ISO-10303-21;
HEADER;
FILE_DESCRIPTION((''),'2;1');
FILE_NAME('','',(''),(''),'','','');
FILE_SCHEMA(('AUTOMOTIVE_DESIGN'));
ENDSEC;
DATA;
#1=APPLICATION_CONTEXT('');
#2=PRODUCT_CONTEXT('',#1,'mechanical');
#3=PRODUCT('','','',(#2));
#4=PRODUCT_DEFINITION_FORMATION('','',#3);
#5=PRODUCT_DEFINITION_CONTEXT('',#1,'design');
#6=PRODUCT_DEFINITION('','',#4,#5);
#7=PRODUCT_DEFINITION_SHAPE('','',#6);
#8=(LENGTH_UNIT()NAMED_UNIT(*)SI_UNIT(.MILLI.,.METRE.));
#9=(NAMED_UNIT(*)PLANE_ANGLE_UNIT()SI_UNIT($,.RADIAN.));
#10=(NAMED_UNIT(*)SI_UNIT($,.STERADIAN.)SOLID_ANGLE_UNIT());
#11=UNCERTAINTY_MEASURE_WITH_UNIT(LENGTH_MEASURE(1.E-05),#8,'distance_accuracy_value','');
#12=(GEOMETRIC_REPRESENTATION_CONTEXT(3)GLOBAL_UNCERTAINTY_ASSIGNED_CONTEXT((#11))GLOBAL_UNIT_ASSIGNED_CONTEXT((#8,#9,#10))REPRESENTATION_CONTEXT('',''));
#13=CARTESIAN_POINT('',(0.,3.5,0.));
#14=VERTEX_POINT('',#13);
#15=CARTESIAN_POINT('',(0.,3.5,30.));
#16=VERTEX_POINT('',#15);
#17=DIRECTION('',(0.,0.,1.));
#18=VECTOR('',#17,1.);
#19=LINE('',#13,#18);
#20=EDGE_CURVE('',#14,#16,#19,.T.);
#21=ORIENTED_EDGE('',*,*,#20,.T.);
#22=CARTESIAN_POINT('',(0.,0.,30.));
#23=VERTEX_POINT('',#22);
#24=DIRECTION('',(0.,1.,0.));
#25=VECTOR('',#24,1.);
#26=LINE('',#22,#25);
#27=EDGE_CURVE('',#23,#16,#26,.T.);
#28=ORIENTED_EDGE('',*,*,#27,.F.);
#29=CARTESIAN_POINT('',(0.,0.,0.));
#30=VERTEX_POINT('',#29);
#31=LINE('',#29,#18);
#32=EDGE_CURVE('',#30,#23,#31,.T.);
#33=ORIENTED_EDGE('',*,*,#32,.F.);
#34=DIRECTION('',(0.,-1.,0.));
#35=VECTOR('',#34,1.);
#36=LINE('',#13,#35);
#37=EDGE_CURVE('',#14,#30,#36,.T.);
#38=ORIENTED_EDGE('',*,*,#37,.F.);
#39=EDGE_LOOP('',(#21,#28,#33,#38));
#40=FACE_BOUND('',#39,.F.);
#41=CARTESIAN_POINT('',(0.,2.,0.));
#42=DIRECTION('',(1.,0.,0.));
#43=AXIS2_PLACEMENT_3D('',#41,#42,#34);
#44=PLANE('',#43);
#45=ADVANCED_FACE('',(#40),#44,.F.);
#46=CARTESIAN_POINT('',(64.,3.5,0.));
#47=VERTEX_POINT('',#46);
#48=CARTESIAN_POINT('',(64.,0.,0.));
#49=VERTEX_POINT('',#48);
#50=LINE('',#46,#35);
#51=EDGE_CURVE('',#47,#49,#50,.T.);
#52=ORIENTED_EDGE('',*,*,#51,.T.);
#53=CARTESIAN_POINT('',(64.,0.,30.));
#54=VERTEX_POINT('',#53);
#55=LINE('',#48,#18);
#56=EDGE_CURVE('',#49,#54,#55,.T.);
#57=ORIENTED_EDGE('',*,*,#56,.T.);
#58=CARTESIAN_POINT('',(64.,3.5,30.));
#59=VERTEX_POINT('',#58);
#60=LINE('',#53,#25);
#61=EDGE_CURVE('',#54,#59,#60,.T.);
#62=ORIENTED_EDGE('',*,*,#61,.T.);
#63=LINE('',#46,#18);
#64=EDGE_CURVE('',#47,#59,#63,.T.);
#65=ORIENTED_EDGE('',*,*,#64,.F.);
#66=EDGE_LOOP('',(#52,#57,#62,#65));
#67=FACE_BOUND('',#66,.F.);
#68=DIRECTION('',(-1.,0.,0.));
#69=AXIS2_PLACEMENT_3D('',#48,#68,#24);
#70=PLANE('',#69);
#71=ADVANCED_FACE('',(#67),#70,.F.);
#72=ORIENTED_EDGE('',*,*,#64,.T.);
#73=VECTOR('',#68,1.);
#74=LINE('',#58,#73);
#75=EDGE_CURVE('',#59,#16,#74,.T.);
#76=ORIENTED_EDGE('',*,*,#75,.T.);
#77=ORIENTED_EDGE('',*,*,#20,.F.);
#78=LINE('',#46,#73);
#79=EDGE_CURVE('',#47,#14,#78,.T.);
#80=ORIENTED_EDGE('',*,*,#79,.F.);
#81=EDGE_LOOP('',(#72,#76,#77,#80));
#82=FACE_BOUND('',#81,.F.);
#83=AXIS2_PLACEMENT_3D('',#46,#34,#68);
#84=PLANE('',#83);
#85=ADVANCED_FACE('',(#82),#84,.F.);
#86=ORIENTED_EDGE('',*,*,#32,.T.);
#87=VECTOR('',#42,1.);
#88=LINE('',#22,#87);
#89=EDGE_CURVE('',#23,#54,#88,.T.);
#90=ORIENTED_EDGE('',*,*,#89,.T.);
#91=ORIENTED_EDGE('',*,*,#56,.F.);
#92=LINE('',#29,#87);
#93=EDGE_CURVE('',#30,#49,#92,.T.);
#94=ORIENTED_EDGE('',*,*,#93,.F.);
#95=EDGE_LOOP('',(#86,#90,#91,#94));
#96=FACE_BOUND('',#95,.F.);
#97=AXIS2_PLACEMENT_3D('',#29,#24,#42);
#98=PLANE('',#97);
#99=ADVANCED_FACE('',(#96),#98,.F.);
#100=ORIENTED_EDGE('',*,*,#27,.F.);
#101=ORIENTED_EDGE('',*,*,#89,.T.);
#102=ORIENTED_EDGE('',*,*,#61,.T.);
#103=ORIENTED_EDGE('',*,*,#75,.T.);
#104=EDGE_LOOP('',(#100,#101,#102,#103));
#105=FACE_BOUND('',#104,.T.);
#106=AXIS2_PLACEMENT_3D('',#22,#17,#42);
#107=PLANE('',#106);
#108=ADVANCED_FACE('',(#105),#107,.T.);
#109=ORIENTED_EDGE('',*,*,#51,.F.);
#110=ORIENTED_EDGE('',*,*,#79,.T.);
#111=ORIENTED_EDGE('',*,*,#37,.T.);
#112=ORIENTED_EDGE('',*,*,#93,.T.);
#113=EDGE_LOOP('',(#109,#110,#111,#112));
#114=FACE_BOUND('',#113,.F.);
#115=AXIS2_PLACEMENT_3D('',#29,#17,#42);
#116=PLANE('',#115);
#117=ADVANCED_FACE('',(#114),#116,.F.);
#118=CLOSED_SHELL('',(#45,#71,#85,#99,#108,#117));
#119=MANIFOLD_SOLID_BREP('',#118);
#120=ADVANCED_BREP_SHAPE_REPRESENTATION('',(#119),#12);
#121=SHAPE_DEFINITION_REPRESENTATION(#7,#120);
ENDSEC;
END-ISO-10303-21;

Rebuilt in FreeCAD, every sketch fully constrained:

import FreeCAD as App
import Part
import Sketcher

V = App.Vector
Q = App.Units.Quantity

doc = App.newDocument("Part")
body = doc.addObject("PartDesign::Body", "Body")

# Sketch on XY plane
sketch1 = body.newObject("Sketcher::SketchObject", "Sketch")
sketch1.AttachmentSupport = (doc.getObject("XY_Plane"), [""])
sketch1.MapMode = "FlatFace"
sketch1.addGeometry([
    Part.LineSegment(V(0, 2, 0), V(0, 0, 0)),
    Part.LineSegment(V(0, 0, 0), V(64, 0, 0)),
    Part.LineSegment(V(64, 0, 0), V(64, 2, 0)),
    Part.LineSegment(V(64, 2, 0), V(0, 2, 0)),
], False)
sketch1.addConstraint([
    Sketcher.Constraint("Coincident", 0, 2, 1, 1),
    Sketcher.Constraint("Coincident", 1, 2, 2, 1),
    Sketcher.Constraint("Coincident", 2, 2, 3, 1),
    Sketcher.Constraint("Coincident", 3, 2, 0, 1),
    Sketcher.Constraint("Vertical", 0),
    Sketcher.Constraint("Horizontal", 1),
    Sketcher.Constraint("Vertical", 2),
    Sketcher.Constraint("Horizontal", 3),
    Sketcher.Constraint("Coincident", 0, 2, -1, 1),
    Sketcher.Constraint("DistanceX", 1, 1, 1, 2, Q("64 mm")),
    Sketcher.Constraint("DistanceY", 0, 2, 0, 1, Q("2 mm")),
])
pad1 = body.newObject("PartDesign::Pad", "Pad")
pad1.Profile = sketch1
pad1.Length = 30

# Sketch on XY plane
sketch2 = body.newObject("Sketcher::SketchObject", "Sketch001")
sketch2.AttachmentSupport = (doc.getObject("XY_Plane"), [""])
sketch2.MapMode = "FlatFace"
sketch2.addGeometry([
    Part.LineSegment(V(0, 3.5, 0), V(0, 2, 0)),
    Part.LineSegment(V(0, 2, 0), V(64, 2, 0)),
    Part.LineSegment(V(64, 2, 0), V(64, 3.5, 0)),
    Part.LineSegment(V(64, 3.5, 0), V(0, 3.5, 0)),
], False)
sketch2.addConstraint([
    Sketcher.Constraint("Coincident", 0, 2, 1, 1),
    Sketcher.Constraint("Coincident", 1, 2, 2, 1),
    Sketcher.Constraint("Coincident", 2, 2, 3, 1),
    Sketcher.Constraint("Coincident", 3, 2, 0, 1),
    Sketcher.Constraint("Vertical", 0),
    Sketcher.Constraint("Horizontal", 1),
    Sketcher.Constraint("Vertical", 2),
    Sketcher.Constraint("Horizontal", 3),
    Sketcher.Constraint("PointOnObject", 0, 2, -2),
    Sketcher.Constraint("DistanceX", 1, 1, 1, 2, Q("64 mm")),
    Sketcher.Constraint("DistanceY", 0, 2, 0, 1, Q("1.5 mm")),
    Sketcher.Constraint("DistanceY", -1, 1, 0, 2, Q("2 mm")),
])
pad2 = body.newObject("PartDesign::Pad", "Pad001")
pad2.Profile = sketch2
pad2.Length = 30

doc.recompute()
